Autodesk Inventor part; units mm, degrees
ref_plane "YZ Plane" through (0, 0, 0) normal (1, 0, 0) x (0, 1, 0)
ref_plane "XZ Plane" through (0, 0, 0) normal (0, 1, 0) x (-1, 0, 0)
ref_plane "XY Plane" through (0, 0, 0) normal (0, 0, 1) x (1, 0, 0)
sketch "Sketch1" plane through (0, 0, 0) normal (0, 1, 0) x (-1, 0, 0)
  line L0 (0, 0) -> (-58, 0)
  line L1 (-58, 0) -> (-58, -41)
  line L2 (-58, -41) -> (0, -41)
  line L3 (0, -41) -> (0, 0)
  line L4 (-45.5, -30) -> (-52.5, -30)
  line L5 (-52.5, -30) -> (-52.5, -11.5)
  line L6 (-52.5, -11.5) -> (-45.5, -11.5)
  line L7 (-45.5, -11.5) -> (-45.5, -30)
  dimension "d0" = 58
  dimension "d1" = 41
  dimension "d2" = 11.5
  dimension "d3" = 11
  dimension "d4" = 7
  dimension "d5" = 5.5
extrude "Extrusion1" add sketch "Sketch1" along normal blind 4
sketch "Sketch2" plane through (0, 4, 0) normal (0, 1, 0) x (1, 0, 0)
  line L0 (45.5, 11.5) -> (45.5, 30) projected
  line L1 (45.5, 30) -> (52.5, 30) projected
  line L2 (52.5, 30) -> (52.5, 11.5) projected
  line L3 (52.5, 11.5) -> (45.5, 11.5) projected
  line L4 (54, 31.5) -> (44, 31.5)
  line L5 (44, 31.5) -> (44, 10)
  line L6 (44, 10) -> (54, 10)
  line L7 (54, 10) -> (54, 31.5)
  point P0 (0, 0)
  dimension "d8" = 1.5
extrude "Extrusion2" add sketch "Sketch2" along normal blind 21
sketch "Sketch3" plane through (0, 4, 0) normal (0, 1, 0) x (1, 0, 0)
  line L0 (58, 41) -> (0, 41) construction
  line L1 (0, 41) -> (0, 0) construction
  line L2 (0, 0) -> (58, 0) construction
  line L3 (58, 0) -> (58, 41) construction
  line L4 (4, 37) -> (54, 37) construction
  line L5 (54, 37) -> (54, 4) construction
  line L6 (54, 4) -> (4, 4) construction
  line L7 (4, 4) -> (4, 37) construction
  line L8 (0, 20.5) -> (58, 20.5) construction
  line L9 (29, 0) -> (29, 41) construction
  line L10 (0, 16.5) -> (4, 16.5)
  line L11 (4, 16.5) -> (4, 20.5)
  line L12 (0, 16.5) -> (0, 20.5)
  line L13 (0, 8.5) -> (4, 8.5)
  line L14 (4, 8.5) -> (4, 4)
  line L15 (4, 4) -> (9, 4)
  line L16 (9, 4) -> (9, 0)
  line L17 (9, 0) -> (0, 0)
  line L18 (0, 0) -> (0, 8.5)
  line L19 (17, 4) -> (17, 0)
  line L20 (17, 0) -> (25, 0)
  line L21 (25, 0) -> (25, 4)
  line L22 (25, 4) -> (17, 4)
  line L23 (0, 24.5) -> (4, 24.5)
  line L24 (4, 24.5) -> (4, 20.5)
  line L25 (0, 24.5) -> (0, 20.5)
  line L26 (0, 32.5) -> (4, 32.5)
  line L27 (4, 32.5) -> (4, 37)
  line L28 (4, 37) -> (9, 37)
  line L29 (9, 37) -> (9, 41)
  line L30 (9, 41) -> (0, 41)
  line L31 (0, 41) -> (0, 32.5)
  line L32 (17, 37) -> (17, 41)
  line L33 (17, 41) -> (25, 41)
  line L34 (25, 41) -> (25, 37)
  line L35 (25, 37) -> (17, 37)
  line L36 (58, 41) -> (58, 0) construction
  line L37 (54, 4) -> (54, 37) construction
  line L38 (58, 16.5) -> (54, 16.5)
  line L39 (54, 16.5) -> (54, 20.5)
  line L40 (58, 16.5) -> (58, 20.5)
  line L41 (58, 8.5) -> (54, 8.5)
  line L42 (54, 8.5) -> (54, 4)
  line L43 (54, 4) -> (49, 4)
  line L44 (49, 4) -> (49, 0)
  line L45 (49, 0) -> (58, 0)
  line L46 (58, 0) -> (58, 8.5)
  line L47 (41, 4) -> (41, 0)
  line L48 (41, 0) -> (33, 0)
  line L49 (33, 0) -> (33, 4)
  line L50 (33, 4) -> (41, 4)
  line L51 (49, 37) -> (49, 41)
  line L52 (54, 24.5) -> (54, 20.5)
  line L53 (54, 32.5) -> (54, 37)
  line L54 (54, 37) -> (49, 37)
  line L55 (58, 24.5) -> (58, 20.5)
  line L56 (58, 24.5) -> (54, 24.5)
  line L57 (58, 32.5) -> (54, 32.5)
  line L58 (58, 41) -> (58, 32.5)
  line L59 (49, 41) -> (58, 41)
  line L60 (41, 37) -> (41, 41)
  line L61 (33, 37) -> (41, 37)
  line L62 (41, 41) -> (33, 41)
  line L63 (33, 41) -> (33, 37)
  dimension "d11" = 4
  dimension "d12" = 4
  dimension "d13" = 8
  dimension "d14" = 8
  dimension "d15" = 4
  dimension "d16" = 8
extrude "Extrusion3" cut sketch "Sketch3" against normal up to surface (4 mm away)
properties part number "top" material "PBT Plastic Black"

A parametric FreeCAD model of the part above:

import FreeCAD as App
import Part
import Sketcher
Q = App.Units.Quantity

doc = App.newDocument("Part")
body = doc.addObject("PartDesign::Body", "Body")

sketch1 = body.newObject("Sketcher::SketchObject", "Sketch")
sketch1.AttachmentSupport = (doc.getObject("XZ_Plane"), [""])
sketch1.MapMode = "FlatFace"
sketch1.addGeometry([
    Part.LineSegment(App.Vector(0, -41, 0), App.Vector(0, 0, 0)),
    Part.LineSegment(App.Vector(0, 0, 0), App.Vector(58, 0, 0)),
    Part.LineSegment(App.Vector(58, 0, 0), App.Vector(58, -41, 0)),
    Part.LineSegment(App.Vector(58, -41, 0), App.Vector(0, -41, 0)),
    Part.LineSegment(App.Vector(45.5, -11.5, 0), App.Vector(45.5, -30, 0)),
    Part.LineSegment(App.Vector(45.5, -30, 0), App.Vector(52.5, -30, 0)),
    Part.LineSegment(App.Vector(52.5, -30, 0), App.Vector(52.5, -11.5, 0)),
    Part.LineSegment(App.Vector(52.5, -11.5, 0), App.Vector(45.5, -11.5, 0)),
], False)
sketch1.addConstraint([
    Sketcher.Constraint("Coincident", 0, 2, 1, 1),
    Sketcher.Constraint("Coincident", 1, 2, 2, 1),
    Sketcher.Constraint("Coincident", 2, 2, 3, 1),
    Sketcher.Constraint("Coincident", 3, 2, 0, 1),
    Sketcher.Constraint("Coincident", 4, 2, 5, 1),
    Sketcher.Constraint("Coincident", 5, 2, 6, 1),
    Sketcher.Constraint("Coincident", 6, 2, 7, 1),
    Sketcher.Constraint("Coincident", 7, 2, 4, 1),
    Sketcher.Constraint("Vertical", 0),
    Sketcher.Constraint("Horizontal", 1),
    Sketcher.Constraint("Vertical", 2),
    Sketcher.Constraint("Horizontal", 3),
    Sketcher.Constraint("Vertical", 4),
    Sketcher.Constraint("Horizontal", 5),
    Sketcher.Constraint("Vertical", 6),
    Sketcher.Constraint("Horizontal", 7),
    Sketcher.Constraint("Coincident", 0, 2, -1, 1),
    Sketcher.Constraint("DistanceX", 1, 1, 1, 2, Q("58 mm")),
    Sketcher.Constraint("DistanceX", 5, 1, 5, 2, Q("7 mm")),
    Sketcher.Constraint("DistanceY", 0, 1, 0, 2, Q("41 mm")),
    Sketcher.Constraint("DistanceY", 2, 2, 4, 2, Q("11 mm")),
    Sketcher.Constraint("DistanceY", 6, 2, -1, 1, Q("11.5 mm")),
    Sketcher.Constraint("DistanceX", 5, 2, 2, 2, Q("5.5 mm")),
])
pad1 = body.newObject("PartDesign::Pad", "Pad")
pad1.Profile = sketch1
pad1.Length = 4
pad1.Reversed = True

sketch2 = body.newObject("Sketcher::SketchObject", "Sketch001")
sketch2.AttachmentSupport = (doc.getObject("XZ_Plane"), [""])
sketch2.MapMode = "FlatFace"
sketch2.AttachmentOffset = App.Placement(App.Vector(0, 0, -4), App.Rotation())
sketch2.addGeometry([
    Part.LineSegment(App.Vector(54, -10, 0), App.Vector(54, -31.5, 0)),
    Part.LineSegment(App.Vector(54, -31.5, 0), App.Vector(44, -31.5, 0)),
    Part.LineSegment(App.Vector(44, -31.5, 0), App.Vector(44, -10, 0)),
    Part.LineSegment(App.Vector(44, -10, 0), App.Vector(54, -10, 0)),
    Part.LineSegment(App.Vector(52.5, -11.5, 0), App.Vector(45.5, -11.5, 0)),
    Part.LineSegment(App.Vector(45.5, -11.5, 0), App.Vector(45.5, -30, 0)),
    Part.LineSegment(App.Vector(45.5, -30, 0), App.Vector(52.5, -30, 0)),
    Part.LineSegment(App.Vector(52.5, -30, 0), App.Vector(52.5, -11.5, 0)),
], False)
sketch2.addConstraint([
    Sketcher.Constraint("Coincident", 0, 2, 1, 1),
    Sketcher.Constraint("Coincident", 1, 2, 2, 1),
    Sketcher.Constraint("Coincident", 2, 2, 3, 1),
    Sketcher.Constraint("Coincident", 3, 2, 0, 1),
    Sketcher.Constraint("Coincident", 4, 2, 5, 1),
    Sketcher.Constraint("Coincident", 5, 2, 6, 1),
    Sketcher.Constraint("Coincident", 6, 2, 7, 1),
    Sketcher.Constraint("Coincident", 7, 2, 4, 1),
    Sketcher.Constraint("Vertical", 0),
    Sketcher.Constraint("Horizontal", 1),
    Sketcher.Constraint("Vertical", 2),
    Sketcher.Constraint("Horizontal", 3),
    Sketcher.Constraint("Horizontal", 4),
    Sketcher.Constraint("Vertical", 5),
    Sketcher.Constraint("Horizontal", 6),
    Sketcher.Constraint("Vertical", 7),
    Sketcher.Constraint("DistanceX", 2, 2, 4, 2, Q("1.5 mm")),
    Sketcher.Constraint("DistanceY", 4, 2, 2, 2, Q("1.5 mm")),
    Sketcher.Constraint("DistanceY", 1, 2, 5, 2, Q("1.5 mm")),
    Sketcher.Constraint("DistanceX", 6, 2, 0, 2, Q("1.5 mm")),
    Sketcher.Constraint("DistanceX", 1, 2, 1, 1, Q("10 mm")),
    Sketcher.Constraint("DistanceY", 0, 2, 0, 1, Q("21.5 mm")),
    Sketcher.Constraint("DistanceX", -1, 1, 0, 2, Q("54 mm")),
    Sketcher.Constraint("DistanceY", 2, 2, -1, 1, Q("10 mm")),
])
pad2 = body.newObject("PartDesign::Pad", "Pad001")
pad2.Profile = sketch2
pad2.Length = 21
pad2.Reversed = True

sketch3 = body.newObject("Sketcher::SketchObject", "Sketch002")
sketch3.AttachmentSupport = (doc.getObject("XZ_Plane"), [""])
sketch3.MapMode = "FlatFace"
sketch3.AttachmentOffset = App.Placement(App.Vector(0, 0, -4), App.Rotation())
sketch3.addGeometry([
    Part.LineSegment(App.Vector(0, -24.5, 0), App.Vector(0, -16.5, 0)),
    Part.LineSegment(App.Vector(0, -16.5, 0), App.Vector(4, -16.5, 0)),
    Part.LineSegment(App.Vector(4, -16.5, 0), App.Vector(4, -24.5, 0)),
    Part.LineSegment(App.Vector(4, -24.5, 0), App.Vector(0, -24.5, 0)),
    Part.LineSegment(App.Vector(4, -8.5, 0), App.Vector(0, -8.5, 0)),
    Part.LineSegment(App.Vector(0, -8.5, 0), App.Vector(0, 0, 0)),
    Part.LineSegment(App.Vector(0, 0, 0), App.Vector(9, 0, 0)),
    Part.LineSegment(App.Vector(9, 0, 0), App.Vector(9, -4, 0)),
    Part.LineSegment(App.Vector(9, -4, 0), App.Vector(4, -4, 0)),
    Part.LineSegment(App.Vector(4, -4, 0), App.Vector(4, -8.5, 0)),
    Part.LineSegment(App.Vector(25, -4, 0), App.Vector(17, -4, 0)),
    Part.LineSegment(App.Vector(17, -4, 0), App.Vector(17, 0, 0)),
    Part.LineSegment(App.Vector(17, 0, 0), App.Vector(25, 0, 0)),
    Part.LineSegment(App.Vector(25, 0, 0), App.Vector(25, -4, 0)),
    Part.LineSegment(App.Vector(0, -41, 0), App.Vector(0, -32.5, 0)),
    Part.LineSegment(App.Vector(0, -32.5, 0), App.Vector(4, -32.5, 0)),
    Part.LineSegment(App.Vector(4, -32.5, 0), App.Vector(4, -37, 0)),
    Part.LineSegment(App.Vector(4, -37, 0), App.Vector(9, -37, 0)),
    Part.LineSegment(App.Vector(9, -37, 0), App.Vector(9, -41, 0)),
    Part.LineSegment(App.Vector(9, -41, 0), App.Vector(0, -41, 0)),
    Part.LineSegment(App.Vector(17, -41, 0), App.Vector(17, -37, 0)),
    Part.LineSegment(App.Vector(17, -37, 0), App.Vector(25, -37, 0)),
    Part.LineSegment(App.Vector(25, -37, 0), App.Vector(25, -41, 0)),
    Part.LineSegment(App.Vector(25, -41, 0), App.Vector(17, -41, 0)),
    Part.LineSegment(App.Vector(54, -16.5, 0), App.Vector(58, -16.5, 0)),
    Part.LineSegment(App.Vector(58, -16.5, 0), App.Vector(58, -24.5, 0)),
    Part.LineSegment(App.Vector(58, -24.5, 0), App.Vector(54, -24.5, 0)),
    Part.LineSegment(App.Vector(54, -24.5, 0), App.Vector(54, -16.5, 0)),
    Part.LineSegment(App.Vector(58, 0, 0), App.Vector(58, -8.5, 0)),
    Part.LineSegment(App.Vector(58, -8.5, 0), App.Vector(54, -8.5, 0)),
    Part.LineSegment(App.Vector(54, -8.5, 0), App.Vector(54, -4, 0)),
    Part.LineSegment(App.Vector(54, -4, 0), App.Vector(49, -4, 0)),
    Part.LineSegment(App.Vector(49, -4, 0), App.Vector(49, 0, 0)),
    Part.LineSegment(App.Vector(49, 0, 0), App.Vector(58, 0, 0)),
    Part.LineSegment(App.Vector(41, 0, 0), App.Vector(41, -4, 0)),
    Part.LineSegment(App.Vector(41, -4, 0), App.Vector(33, -4, 0)),
    Part.LineSegment(App.Vector(33, -4, 0), App.Vector(33, 0, 0)),
    Part.LineSegment(App.Vector(33, 0, 0), App.Vector(41, 0, 0)),
    Part.LineSegment(App.Vector(49, -41, 0), App.Vector(49, -37, 0)),
    Part.LineSegment(App.Vector(49, -37, 0), App.Vector(54, -37, 0)),
    Part.LineSegment(App.Vector(54, -37, 0), App.Vector(54, -32.5, 0)),
    Part.LineSegment(App.Vector(54, -32.5, 0), App.Vector(58, -32.5, 0)),
    Part.LineSegment(App.Vector(58, -32.5, 0), App.Vector(58, -41, 0)),
    Part.LineSegment(App.Vector(58, -41, 0), App.Vector(49, -41, 0)),
    Part.LineSegment(App.Vector(33, -37, 0), App.Vector(41, -37, 0)),
    Part.LineSegment(App.Vector(41, -37, 0), App.Vector(41, -41, 0)),
    Part.LineSegment(App.Vector(41, -41, 0), App.Vector(33, -41, 0)),
    Part.LineSegment(App.Vector(33, -41, 0), App.Vector(33, -37, 0)),
], False)
sketch3.addConstraint([
    Sketcher.Constraint("Coincident", 0, 2, 1, 1),
    Sketcher.Constraint("Coincident", 1, 2, 2, 1),
    Sketcher.Constraint("Coincident", 2, 2, 3, 1),
    Sketcher.Constraint("Coincident", 3, 2, 0, 1),
    Sketcher.Constraint("Coincident", 4, 2, 5, 1),
    Sketcher.Constraint("Coincident", 5, 2, 6, 1),
    Sketcher.Constraint("Coincident", 6, 2, 7, 1),
    Sketcher.Constraint("Coincident", 7, 2, 8, 1),
    Sketcher.Constraint("Coincident", 8, 2, 9, 1),
    Sketcher.Constraint("Coincident", 9, 2, 4, 1),
    Sketcher.Constraint("Coincident", 10, 2, 11, 1),
    Sketcher.Constraint("Coincident", 11, 2, 12, 1),
    Sketcher.Constraint("Coincident", 12, 2, 13, 1),
    Sketcher.Constraint("Coincident", 13, 2, 10, 1),
    Sketcher.Constraint("Coincident", 14, 2, 15, 1),
    Sketcher.Constraint("Coincident", 15, 2, 16, 1),
    Sketcher.Constraint("Coincident", 16, 2, 17, 1),
    Sketcher.Constraint("Coincident", 17, 2, 18, 1),
    Sketcher.Constraint("Coincident", 18, 2, 19, 1),
    Sketcher.Constraint("Coincident", 19, 2, 14, 1),
    Sketcher.Constraint("Coincident", 20, 2, 21, 1),
    Sketcher.Constraint("Coincident", 21, 2, 22, 1),
    Sketcher.Constraint("Coincident", 22, 2, 23, 1),
    Sketcher.Constraint("Coincident", 23, 2, 20, 1),
    Sketcher.Constraint("Coincident", 24, 2, 25, 1),
    Sketcher.Constraint("Coincident", 25, 2, 26, 1),
    Sketcher.Constraint("Coincident", 26, 2, 27, 1),
    Sketcher.Constraint("Coincident", 27, 2, 24, 1),
    Sketcher.Constraint("Coincident", 28, 2, 29, 1),
    Sketcher.Constraint("Coincident", 29, 2, 30, 1),
    Sketcher.Constraint("Coincident", 30, 2, 31, 1),
    Sketcher.Constraint("Coincident", 31, 2, 32, 1),
    Sketcher.Constraint("Coincident", 32, 2, 33, 1),
    Sketcher.Constraint("Coincident", 33, 2, 28, 1),
    Sketcher.Constraint("Coincident", 34, 2, 35, 1),
    Sketcher.Constraint("Coincident", 35, 2, 36, 1),
    Sketcher.Constraint("Coincident", 36, 2, 37, 1),
    Sketcher.Constraint("Coincident", 37, 2, 34, 1),
    Sketcher.Constraint("Coincident", 38, 2, 39, 1),
    Sketcher.Constraint("Coincident", 39, 2, 40, 1),
    Sketcher.Constraint("Coincident", 40, 2, 41, 1),
    Sketcher.Constraint("Coincident", 41, 2, 42, 1),
    Sketcher.Constraint("Coincident", 42, 2, 43, 1),
    Sketcher.Constraint("Coincident", 43, 2, 38, 1),
    Sketcher.Constraint("Coincident", 44, 2, 45, 1),
    Sketcher.Constraint("Coincident", 45, 2, 46, 1),
    Sketcher.Constraint("Coincident", 46, 2, 47, 1),
    Sketcher.Constraint("Coincident", 47, 2, 44, 1),
    Sketcher.Constraint("Vertical", 0),
    Sketcher.Constraint("Horizontal", 1),
    Sketcher.Constraint("Vertical", 2),
    Sketcher.Constraint("Horizontal", 3),
    Sketcher.Constraint("Horizontal", 4),
    Sketcher.Constraint("Vertical", 5),
    Sketcher.Constraint("Horizontal", 6),
    Sketcher.Constraint("Vertical", 7),
    Sketcher.Constraint("Horizontal", 8),
    Sketcher.Constraint("Vertical", 9),
    Sketcher.Constraint("Horizontal", 10),
    Sketcher.Constraint("Vertical", 11),
    Sketcher.Constraint("Horizontal", 12),
    Sketcher.Constraint("Vertical", 13),
    Sketcher.Constraint("Vertical", 14),
    Sketcher.Constraint("Horizontal", 15),
    Sketcher.Constraint("Vertical", 16),
    Sketcher.Constraint("Horizontal", 17),
    Sketcher.Constraint("Vertical", 18),
    Sketcher.Constraint("Horizontal", 19),
    Sketcher.Constraint("Vertical", 20),
    Sketcher.Constraint("Horizontal", 21),
    Sketcher.Constraint("Vertical", 22),
    Sketcher.Constraint("Horizontal", 23),
    Sketcher.Constraint("Horizontal", 24),
    Sketcher.Constraint("Vertical", 25),
    Sketcher.Constraint("Horizontal", 26),
    Sketcher.Constraint("Vertical", 27),
    Sketcher.Constraint("Vertical", 28),
    Sketcher.Constraint("Horizontal", 29),
    Sketcher.Constraint("Vertical", 30),
    Sketcher.Constraint("Horizontal", 31),
    Sketcher.Constraint("Vertical", 32),
    Sketcher.Constraint("Horizontal", 33),
    Sketcher.Constraint("Vertical", 34),
    Sketcher.Constraint("Horizontal", 35),
    Sketcher.Constraint("Vertical", 36),
    Sketcher.Constraint("Horizontal", 37),
    Sketcher.Constraint("Vertical", 38),
    Sketcher.Constraint("Horizontal", 39),
    Sketcher.Constraint("Vertical", 40),
    Sketcher.Constraint("Horizontal", 41),
    Sketcher.Constraint("Vertical", 42),
    Sketcher.Constraint("Horizontal", 43),
    Sketcher.Constraint("Horizontal", 44),
    Sketcher.Constraint("Vertical", 45),
    Sketcher.Constraint("Horizontal", 46),
    Sketcher.Constraint("Vertical", 47),
    Sketcher.Constraint("Coincident", 5, 2, -1, 1),
    Sketcher.Constraint("PointOnObject", 0, 2, -2),
    Sketcher.Constraint("PointOnObject", 11, 2, -1),
    Sketcher.Constraint("PointOnObject", 14, 2, -2),
    Sketcher.Constraint("PointOnObject", 32, 2, -1),
    Sketcher.Constraint("PointOnObject", 36, 2, -1),
    Sketcher.Constraint("Horizontal", 8, 2, 10, 2),
    Sketcher.Constraint("Horizontal", 17, 2, 20, 2),
    Sketcher.Constraint("Horizontal", 19, 2, 22, 2),
    Sketcher.Constraint("Horizontal", 1, 2, 24, 2),
    Sketcher.Constraint("Horizontal", 3, 2, 25, 2),
    Sketcher.Constraint("Horizontal", 9, 2, 28, 2),
    Sketcher.Constraint("Horizontal", 13, 2, 30, 2),
    Sketcher.Constraint("Horizontal", 31, 2, 34, 2),
    Sketcher.Constraint("Horizontal", 21, 2, 38, 2),
    Sketcher.Constraint("Horizontal", 15, 2, 40, 2),
    Sketcher.Constraint("Horizontal", 23, 2, 42, 2),
    Sketcher.Constraint("Horizontal", 39, 2, 44, 2),
    Sketcher.Constraint("Horizontal", 43, 2, 45, 2),
    Sketcher.Constraint("Vertical", 2, 2, 8, 2),
    Sketcher.Constraint("Vertical", 9, 2, 15, 2),
    Sketcher.Constraint("Vertical", 7, 2, 17, 2),
    Sketcher.Constraint("Vertical", 11, 2, 20, 2),
    Sketcher.Constraint("Vertical", 13, 2, 21, 2),
    Sketcher.Constraint("Vertical", 25, 2, 28, 2),
    Sketcher.Constraint("Vertical", 27, 2, 29, 2),
    Sketcher.Constraint("Vertical", 32, 2, 38, 2),
    Sketcher.Constraint("Vertical", 30, 2, 39, 2),
    Sketcher.Constraint("Vertical", 33, 2, 41, 2),
    Sketcher.Constraint("Vertical", 37, 2, 44, 2),
    Sketcher.Constraint("Vertical", 36, 2, 46, 2),
    Sketcher.Constraint("Equal", 15, 24),
    Sketcher.Constraint("Equal", 17, 31),
    Sketcher.Constraint("Equal", 23, 35),
    Sketcher.Constraint("Equal", 46, 0),
    Sketcher.Constraint("Equal", 41, 7),
    Sketcher.Constraint("Equal", 5, 14),
    Sketcher.Constraint("Equal", 9, 16),
    Sketcher.Constraint("DistanceX", 1, 1, 1, 2, Q("4 mm")),
    Sketcher.Constraint("DistanceX", 10, 2, 10, 1, Q("8 mm")),
    Sketcher.Constraint("DistanceY", 0, 2, 4, 2, Q("8 mm")),
    Sketcher.Constraint("DistanceX", 7, 2, 10, 2, Q("8 mm")),
    Sketcher.Constraint("DistanceY", 14, 2, 3, 2, Q("8 mm")),
    Sketcher.Constraint("DistanceX", 34, 2, 31, 2, Q("8 mm")),
    Sketcher.Constraint("DistanceX", 13, 2, 35, 2, Q("8 mm")),
    Sketcher.Constraint("DistanceX", 6, 1, 6, 2, Q("9 mm")),
    Sketcher.Constraint("DistanceY", 5, 1, 5, 2, Q("8.5 mm")),
])
pocket1 = body.newObject("PartDesign::Pocket", "Pocket")
pocket1.Profile = sketch3
pocket1.Length = 4
pocket1.Reversed = True

doc.recompute()
